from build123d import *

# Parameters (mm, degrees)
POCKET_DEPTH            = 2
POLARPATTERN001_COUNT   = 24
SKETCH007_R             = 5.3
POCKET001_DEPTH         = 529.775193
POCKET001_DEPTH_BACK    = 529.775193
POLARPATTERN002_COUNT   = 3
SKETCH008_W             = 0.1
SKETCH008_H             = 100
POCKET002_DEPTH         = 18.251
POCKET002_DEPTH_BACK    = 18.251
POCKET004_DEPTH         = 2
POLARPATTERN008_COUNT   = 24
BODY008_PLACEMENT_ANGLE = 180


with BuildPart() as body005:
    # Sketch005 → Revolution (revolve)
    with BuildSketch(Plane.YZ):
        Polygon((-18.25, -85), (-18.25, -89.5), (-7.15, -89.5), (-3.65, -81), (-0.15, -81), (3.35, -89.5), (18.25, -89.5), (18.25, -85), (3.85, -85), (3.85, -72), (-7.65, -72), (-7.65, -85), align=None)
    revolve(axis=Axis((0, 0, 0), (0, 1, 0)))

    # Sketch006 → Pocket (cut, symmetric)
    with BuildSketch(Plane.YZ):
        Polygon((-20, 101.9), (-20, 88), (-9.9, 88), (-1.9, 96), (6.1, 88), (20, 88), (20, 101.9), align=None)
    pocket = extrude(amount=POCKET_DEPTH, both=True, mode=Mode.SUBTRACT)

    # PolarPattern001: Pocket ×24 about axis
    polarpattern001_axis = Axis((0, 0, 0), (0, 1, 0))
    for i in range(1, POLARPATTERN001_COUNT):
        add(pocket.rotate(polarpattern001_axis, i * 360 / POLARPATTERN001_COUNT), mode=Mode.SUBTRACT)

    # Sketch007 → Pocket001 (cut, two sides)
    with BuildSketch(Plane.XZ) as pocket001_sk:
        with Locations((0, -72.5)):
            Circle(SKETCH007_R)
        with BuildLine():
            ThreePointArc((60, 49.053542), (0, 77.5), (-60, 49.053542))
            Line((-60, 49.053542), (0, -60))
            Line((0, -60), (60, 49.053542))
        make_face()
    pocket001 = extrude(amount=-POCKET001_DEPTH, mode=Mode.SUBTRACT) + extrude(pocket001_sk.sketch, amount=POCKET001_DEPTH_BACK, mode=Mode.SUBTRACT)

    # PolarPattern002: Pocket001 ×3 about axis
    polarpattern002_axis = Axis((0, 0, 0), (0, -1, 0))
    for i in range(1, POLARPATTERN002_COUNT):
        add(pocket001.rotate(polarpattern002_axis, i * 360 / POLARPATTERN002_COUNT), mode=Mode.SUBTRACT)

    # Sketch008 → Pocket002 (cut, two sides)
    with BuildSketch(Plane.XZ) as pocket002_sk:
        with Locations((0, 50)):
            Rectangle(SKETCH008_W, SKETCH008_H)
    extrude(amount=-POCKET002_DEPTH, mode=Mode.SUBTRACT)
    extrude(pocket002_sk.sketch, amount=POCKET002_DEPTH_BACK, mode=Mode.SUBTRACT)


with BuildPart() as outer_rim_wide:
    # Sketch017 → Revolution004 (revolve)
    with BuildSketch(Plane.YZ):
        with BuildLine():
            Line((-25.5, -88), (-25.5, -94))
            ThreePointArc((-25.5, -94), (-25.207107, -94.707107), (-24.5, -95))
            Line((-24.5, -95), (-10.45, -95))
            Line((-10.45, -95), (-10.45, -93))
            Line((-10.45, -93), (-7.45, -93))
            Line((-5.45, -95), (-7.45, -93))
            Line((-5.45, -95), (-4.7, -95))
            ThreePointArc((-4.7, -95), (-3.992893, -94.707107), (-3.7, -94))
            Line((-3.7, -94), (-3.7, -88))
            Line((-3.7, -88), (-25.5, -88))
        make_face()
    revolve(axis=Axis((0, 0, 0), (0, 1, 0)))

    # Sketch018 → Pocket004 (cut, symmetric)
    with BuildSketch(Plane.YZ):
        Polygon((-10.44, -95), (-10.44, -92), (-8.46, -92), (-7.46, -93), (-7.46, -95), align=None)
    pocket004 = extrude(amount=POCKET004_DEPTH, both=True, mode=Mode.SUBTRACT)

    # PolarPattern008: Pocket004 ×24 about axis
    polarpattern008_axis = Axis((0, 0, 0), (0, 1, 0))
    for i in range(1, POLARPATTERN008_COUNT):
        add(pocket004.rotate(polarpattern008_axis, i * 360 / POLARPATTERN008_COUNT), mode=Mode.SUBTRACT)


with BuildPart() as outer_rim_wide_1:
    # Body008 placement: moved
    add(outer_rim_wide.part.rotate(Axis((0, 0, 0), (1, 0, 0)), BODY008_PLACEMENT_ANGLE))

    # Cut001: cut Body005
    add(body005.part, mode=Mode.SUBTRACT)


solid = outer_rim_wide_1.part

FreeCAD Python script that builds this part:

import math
import FreeCAD as App
import Part
import Sketcher

V = App.Vector
Q = App.Units.Quantity

doc = App.newDocument("Part")
body = doc.addObject("PartDesign::Body", "Body")

# Sketch on YZ plane
sketch1 = body.newObject("Sketcher::SketchObject", "Sketch")
sketch1.AttachmentSupport = (doc.getObject("YZ_Plane"), [""])
sketch1.MapMode = "FlatFace"
sketch1.addGeometry([
    Part.LineSegment(V(-18.2, -85, 0), V(-18.2, -89.5, 0)),  # 0
    Part.LineSegment(V(-18.2, -89.5, 0), V(-7.2, -89.5, 0)),  # 1
    Part.LineSegment(V(-7.2, -89.5, 0), V(-3.6, -81, 0)),  # 2
    Part.LineSegment(V(-3.6, -81, 0), V(-0.1, -81, 0)),  # 3
    Part.LineSegment(V(-0.1, -81, 0), V(3.4, -89.5, 0)),  # 4
    Part.LineSegment(V(3.4, -89.5, 0), V(18.2, -89.5, 0)),  # 5
    Part.LineSegment(V(18.2, -89.5, 0), V(18.2, -85, 0)),  # 6
    Part.LineSegment(V(18.2, -85, 0), V(3.9, -85, 0)),  # 7
    Part.LineSegment(V(3.9, -85, 0), V(3.9, -72, 0)),  # 8
    Part.LineSegment(V(3.9, -72, 0), V(-7.7, -72, 0)),  # 9
    Part.LineSegment(V(-7.7, -72, 0), V(-7.7, -85, 0)),  # 10
    Part.LineSegment(V(-7.7, -85, 0), V(-18.2, -85, 0)),  # 11
], False)
sketch1.addConstraint([
    Sketcher.Constraint("Coincident", 0, 2, 1, 1),
    Sketcher.Constraint("Coincident", 1, 2, 2, 1),
    Sketcher.Constraint("Coincident", 2, 2, 3, 1),
    Sketcher.Constraint("Coincident", 3, 2, 4, 1),
    Sketcher.Constraint("Coincident", 4, 2, 5, 1),
    Sketcher.Constraint("Coincident", 5, 2, 6, 1),
    Sketcher.Constraint("Coincident", 6, 2, 7, 1),
    Sketcher.Constraint("Coincident", 7, 2, 8, 1),
    Sketcher.Constraint("Coincident", 8, 2, 9, 1),
    Sketcher.Constraint("Coincident", 9, 2, 10, 1),
    Sketcher.Constraint("Coincident", 10, 2, 11, 1),
    Sketcher.Constraint("Coincident", 11, 2, 0, 1),
    Sketcher.Constraint("Vertical", 0),
    Sketcher.Constraint("Horizontal", 1),
    Sketcher.Constraint("Horizontal", 3),
    Sketcher.Constraint("Horizontal", 5),
    Sketcher.Constraint("Vertical", 6),
    Sketcher.Constraint("Horizontal", 7),
    Sketcher.Constraint("Vertical", 8),
    Sketcher.Constraint("Horizontal", 9),
    Sketcher.Constraint("Vertical", 10),
    Sketcher.Constraint("Horizontal", 11),
    Sketcher.Constraint("Symmetric", 0, 2, 5, 2, -2),
    Sketcher.Constraint("Horizontal", 7, 2, 10, 2),
    Sketcher.Constraint("Equal", 2, 4),
    Sketcher.Constraint("DistanceY", 8, 1, 8, 2, 13.0),
    Sketcher.Constraint("DistanceX", 1, 1, 1, 2, 11.1),
    Sketcher.Constraint("DistanceX", 3, 1, 3, 2, 3.5),
    Sketcher.Constraint("DistanceX", 5, 1, 5, 2, 14.9),
    Sketcher.Constraint("DistanceX", 7, 2, 7, 1, 14.4),
    Sketcher.Constraint("DistanceX", 9, 2, 9, 1, 11.5),
    Sketcher.Constraint("DistanceX", 11, 2, 11, 1, 10.6),
    Sketcher.Constraint("DistanceY", 0, 2, 0, 1, 4.5),
    Sketcher.Constraint("DistanceY", 2, 2, -1, 1, 81.0),
    Sketcher.Constraint("DistanceY", 6, 2, -1, 1, 85.0),
])
revolution = body.newObject("PartDesign::Revolution", "Revolution")
revolution.Profile = sketch1
revolution.ReferenceAxis = (sketch1, ["H_Axis"])
revolution.Angle = 360

# Sketch on YZ plane
sketch2 = body.newObject("Sketcher::SketchObject", "Sketch001")
sketch2.AttachmentSupport = (doc.getObject("YZ_Plane"), [""])
sketch2.MapMode = "FlatFace"
sketch2.addGeometry([
    Part.LineSegment(V(-20, 102, 0), V(-20, 88, 0)),  # 0
    Part.LineSegment(V(-20, 88, 0), V(-10, 88, 0)),  # 1
    Part.LineSegment(V(-10, 88, 0), V(-2, 96, 0)),  # 2
    Part.LineSegment(V(-2, 96, 0), V(6, 88, 0)),  # 3
    Part.LineSegment(V(6, 88, 0), V(20, 88, 0)),  # 4
    Part.LineSegment(V(20, 88, 0), V(20, 102, 0)),  # 5
    Part.LineSegment(V(20, 102, 0), V(-20, 102, 0)),  # 6
], False)
sketch2.addConstraint([
    Sketcher.Constraint("Coincident", 0, 2, 1, 1),
    Sketcher.Constraint("Coincident", 1, 2, 2, 1),
    Sketcher.Constraint("Coincident", 2, 2, 3, 1),
    Sketcher.Constraint("Coincident", 3, 2, 4, 1),
    Sketcher.Constraint("Coincident", 4, 2, 5, 1),
    Sketcher.Constraint("Coincident", 5, 2, 6, 1),
    Sketcher.Constraint("Coincident", 6, 2, 0, 1),
    Sketcher.Constraint("Vertical", 0),
    Sketcher.Constraint("Horizontal", 1),
    Sketcher.Constraint("Horizontal", 4),
    Sketcher.Constraint("Vertical", 5),
    Sketcher.Constraint("Horizontal", 6),
    Sketcher.Constraint("Symmetric", 0, 2, 4, 2, -2),
    Sketcher.Constraint("Perpendicular", 2, 3),
    Sketcher.Constraint("Equal", 4, 0),
    Sketcher.Constraint("Equal", 2, 3),
    Sketcher.Constraint("DistanceX", 6, 2, 6, 1, 40.0),
    Sketcher.Constraint("DistanceX", 1, 1, 1, 2, 10.1),
    Sketcher.Constraint("DistanceX", 4, 1, 4, 2, 13.9),
    Sketcher.Constraint("DistanceY", -1, 1, 0, 2, 88.0),
])
pocket1 = body.newObject("PartDesign::Pocket", "Pocket")
pocket1.Profile = sketch2
pocket1.Length = 4
pocket1.Midplane = True
doc.recompute()

polarpattern = body.newObject("PartDesign::PolarPattern", "PolarPattern")
polarpattern.Originals = [pocket1]
polarpattern.Axis = (doc.getObject("Y_Axis"), [""])
polarpattern.Angle = 360
polarpattern.Occurrences = 24
body.Tip = polarpattern

# Sketch on XZ plane
sketch3 = body.newObject("Sketcher::SketchObject", "Sketch002")
sketch3.AttachmentSupport = (doc.getObject("XZ_Plane"), [""])
sketch3.MapMode = "FlatFace"
sketch3.addGeometry([
    Part.Circle(V(0, -72, 0), V(0, 0, 1), 5),
    Part.ArcOfCircle(Part.Circle(V(0, 0, 0), V(0, 0, 1), 77), math.radians(39), math.radians(141)),
    Part.LineSegment(V(-60, 49, 0), V(0, -60, 0)),
    Part.LineSegment(V(0, -60, 0), V(60, 49, 0)),
], False)
sketch3.addConstraint([
    Sketcher.Constraint("Coincident", 1, 2, 2, 1),
    Sketcher.Constraint("Coincident", 2, 2, 3, 1),
    Sketcher.Constraint("Coincident", 3, 2, 1, 1),
    Sketcher.Constraint("Coincident", 1, 3, -1, 1),
    Sketcher.Constraint("PointOnObject", 0, 3, -2),
    Sketcher.Constraint("PointOnObject", 2, 2, -2),
    Sketcher.Constraint("Horizontal", 1, 2, 3, 2),
    Sketcher.Constraint("Diameter", 0, 10.6),
    Sketcher.Constraint("Radius", 1, 77.5),
    Sketcher.Constraint("DistanceX", 1, 2, -1, 1, 60.0),
    Sketcher.Constraint("DistanceY", 2, 2, -1, 1, 60.0),
    Sketcher.Constraint("DistanceY", 0, 3, -1, 1, 72.5),
])
pocket2 = body.newObject("PartDesign::Pocket", "Pocket001")
pocket2.Profile = sketch3
pocket2.Type = "ThroughAll"
pocket2.Midplane = True
doc.recompute()

polarpattern2 = body.newObject("PartDesign::PolarPattern", "PolarPattern001")
polarpattern2.Originals = [pocket2]
polarpattern2.Axis = (doc.getObject("Y_Axis"), [""])
polarpattern2.Angle = 360
polarpattern2.Occurrences = 3
body.Tip = polarpattern2

# Sketch on XZ plane
sketch4 = body.newObject("Sketcher::SketchObject", "Sketch003")
sketch4.AttachmentSupport = (doc.getObject("XZ_Plane"), [""])
sketch4.MapMode = "FlatFace"
sketch4.addGeometry([
    Part.LineSegment(V(-0.05, 100, 0), V(-0.05, 0, 0)),
    Part.LineSegment(V(-0.05, 0, 0), V(0.05, 0, 0)),
    Part.LineSegment(V(0.05, 0, 0), V(0.05, 100, 0)),
    Part.LineSegment(V(0.05, 100, 0), V(-0.05, 100, 0)),
], False)
sketch4.addConstraint([
    Sketcher.Constraint("Coincident", 0, 2, 1, 1),
    Sketcher.Constraint("Coincident", 1, 2, 2, 1),
    Sketcher.Constraint("Coincident", 2, 2, 3, 1),
    Sketcher.Constraint("Coincident", 3, 2, 0, 1),
    Sketcher.Constraint("Vertical", 0),
    Sketcher.Constraint("Horizontal", 1),
    Sketcher.Constraint("Vertical", 2),
    Sketcher.Constraint("Horizontal", 3),
    Sketcher.Constraint("Symmetric", 0, 2, 1, 2, -1, 1),
    Sketcher.Constraint("DistanceY", 0, 2, 0, 1, 100.0),
    Sketcher.Constraint("DistanceX", 1, 1, 1, 2, 0.1),
])
pocket3 = body.newObject("PartDesign::Pocket", "Pocket002")
pocket3.Profile = sketch4
pocket3.Type = "ThroughAll"
pocket3.Midplane = True
body2 = doc.addObject("PartDesign::Body", "Body001")

# Sketch on YZ plane
sketch5 = body2.newObject("Sketcher::SketchObject", "Sketch004")
sketch5.AttachmentSupport = (doc.getObject("YZ_Plane001"), [""])
sketch5.MapMode = "FlatFace"
sketch5.addGeometry([
    Part.LineSegment(V(-25.5, -88, 0), V(-25.5, -94, 0)),  # 0
    Part.ArcOfCircle(Part.Circle(V(-24.5, -94, 0), V(0, 0, 1), 1), math.radians(180), math.radians(270)),  # 1
    Part.LineSegment(V(-24.5, -95, 0), V(-10.4, -95, 0)),  # 2
    Part.LineSegment(V(-10.4, -95, 0), V(-10.4, -93, 0)),  # 3
    Part.LineSegment(V(-10.4, -93, 0), V(-7.5, -93, 0)),  # 4
    Part.LineSegment(V(-7.5, -93, 0), V(-5.5, -95, 0)),  # 5
    Part.LineSegment(V(-5.5, -95, 0), V(-4.7, -95, 0)),  # 6
    Part.ArcOfCircle(Part.Circle(V(-4.7, -94, 0), V(0, 0, 1), 1), math.radians(-90), math.radians(0)),  # 7
    Part.LineSegment(V(-3.7, -94, 0), V(-3.7, -88, 0)),  # 8
    Part.LineSegment(V(-3.7, -88, 0), V(-25.5, -88, 0)),  # 9
], False)
sketch5.addConstraint([
    Sketcher.Constraint("Tangent", 0, 2, 1, 1),
    Sketcher.Constraint("Tangent", 1, 2, 2, 1),
    Sketcher.Constraint("Coincident", 2, 2, 3, 1),
    Sketcher.Constraint("Coincident", 3, 2, 4, 1),
    Sketcher.Constraint("Coincident", 4, 2, 5, 1),
    Sketcher.Constraint("Coincident", 5, 2, 6, 1),
    Sketcher.Constraint("Tangent", 6, 2, 7, 1),
    Sketcher.Constraint("Tangent", 7, 2, 8, 1),
    Sketcher.Constraint("Coincident", 8, 2, 9, 1),
    Sketcher.Constraint("Coincident", 9, 2, 0, 1),
    Sketcher.Constraint("Vertical", 0),
    Sketcher.Constraint("Horizontal", 2),
    Sketcher.Constraint("Vertical", 3),
    Sketcher.Constraint("Horizontal", 4),
    Sketcher.Constraint("Horizontal", 6),
    Sketcher.Constraint("Vertical", 8),
    Sketcher.Constraint("Horizontal", 9),
    Sketcher.Constraint("Equal", 1, 7),
    Sketcher.Constraint("Horizontal", 1, 3, 7, 3),
    Sketcher.Constraint("Radius", 1, 0.999999),
    Sketcher.Constraint("DistanceX", 4, 1, 4, 2, 3.0),
    Sketcher.Constraint("DistanceY", 0, 2, 0, 1, 6.0),
    Sketcher.Constraint("DistanceY", 3, 1, 3, 2, 2.0),
    Sketcher.Constraint("Angle", 5, Q("-45 deg")),
    Sketcher.Constraint("DistanceX", 9, 2, 9, 1, 21.8),
    Sketcher.Constraint("DistanceY", 1, 3, -1, 1, 94.000001),
    Sketcher.Constraint("DistanceX", 2, 1, 2, 2, 14.05),
    Sketcher.Constraint("DistanceX", 1, 3, -1, 1, 24.500001),
])
revolution2 = body2.newObject("PartDesign::Revolution", "Revolution001")
revolution2.Profile = sketch5
revolution2.ReferenceAxis = (sketch5, ["H_Axis"])
revolution2.Angle = 360

# Sketch on YZ plane
sketch6 = body2.newObject("Sketcher::SketchObject", "Sketch005")
sketch6.AttachmentSupport = (doc.getObject("YZ_Plane001"), [""])
sketch6.MapMode = "FlatFace"
sketch6.addGeometry([
    Part.LineSegment(V(-10.4, -92, 0), V(-10.4, -95, 0)),  # 0
    Part.LineSegment(V(-10.4, -95, 0), V(-7.5, -95, 0)),  # 1
    Part.LineSegment(V(-7.5, -95, 0), V(-7.5, -93, 0)),  # 2
    Part.LineSegment(V(-7.5, -93, 0), V(-8.5, -92, 0)),  # 3
    Part.LineSegment(V(-8.5, -92, 0), V(-10.4, -92, 0)),  # 4
], False)
sketch6.addConstraint([
    Sketcher.Constraint("Coincident", 0, 2, 1, 1),
    Sketcher.Constraint("Coincident", 1, 2, 2, 1),
    Sketcher.Constraint("Coincident", 2, 2, 3, 1),
    Sketcher.Constraint("Coincident", 3, 2, 4, 1),
    Sketcher.Constraint("Coincident", 4, 2, 0, 1),
    Sketcher.Constraint("Vertical", 0),
    Sketcher.Constraint("Horizontal", 1),
    Sketcher.Constraint("Vertical", 2),
    Sketcher.Constraint("Horizontal", 4),
    Sketcher.Constraint("DistanceY", 0, 2, 0, 1, 3.0),
    Sketcher.Constraint("DistanceY", 2, 1, 2, 2, 2.0),
    Sketcher.Constraint("Angle", 3, Q("135 deg")),
    Sketcher.Constraint("DistanceY", 0, 2, -1, 1, 95.0),
    Sketcher.Constraint("DistanceX", 1, 1, 1, 2, 2.98),
    Sketcher.Constraint("DistanceX", 0, 2, -1, 1, 10.44),
])
pocket4 = body2.newObject("PartDesign::Pocket", "Pocket003")
pocket4.Profile = sketch6
pocket4.Length = 4
pocket4.Midplane = True
doc.recompute()

polarpattern3 = body2.newObject("PartDesign::PolarPattern", "PolarPattern002")
polarpattern3.Originals = [pocket4]
polarpattern3.Axis = (doc.getObject("Y_Axis001"), [""])
polarpattern3.Angle = 360
polarpattern3.Occurrences = 24
body2.Tip = polarpattern3
body3 = doc.addObject("PartDesign::Body", "Body002")
doc.recompute()

body2.Placement = App.Placement(V(0, 0, 0), App.Rotation(V(1, 0, 0), 180))
boolean = body3.newObject("PartDesign::Boolean", "Boolean")
boolean.Type = "Fuse"
boolean.addObjects([body2])
doc.recompute()

boolean2 = body3.newObject("PartDesign::Boolean", "Boolean001")
boolean2.Type = "Cut"
boolean2.addObjects([body])

doc.recompute()
